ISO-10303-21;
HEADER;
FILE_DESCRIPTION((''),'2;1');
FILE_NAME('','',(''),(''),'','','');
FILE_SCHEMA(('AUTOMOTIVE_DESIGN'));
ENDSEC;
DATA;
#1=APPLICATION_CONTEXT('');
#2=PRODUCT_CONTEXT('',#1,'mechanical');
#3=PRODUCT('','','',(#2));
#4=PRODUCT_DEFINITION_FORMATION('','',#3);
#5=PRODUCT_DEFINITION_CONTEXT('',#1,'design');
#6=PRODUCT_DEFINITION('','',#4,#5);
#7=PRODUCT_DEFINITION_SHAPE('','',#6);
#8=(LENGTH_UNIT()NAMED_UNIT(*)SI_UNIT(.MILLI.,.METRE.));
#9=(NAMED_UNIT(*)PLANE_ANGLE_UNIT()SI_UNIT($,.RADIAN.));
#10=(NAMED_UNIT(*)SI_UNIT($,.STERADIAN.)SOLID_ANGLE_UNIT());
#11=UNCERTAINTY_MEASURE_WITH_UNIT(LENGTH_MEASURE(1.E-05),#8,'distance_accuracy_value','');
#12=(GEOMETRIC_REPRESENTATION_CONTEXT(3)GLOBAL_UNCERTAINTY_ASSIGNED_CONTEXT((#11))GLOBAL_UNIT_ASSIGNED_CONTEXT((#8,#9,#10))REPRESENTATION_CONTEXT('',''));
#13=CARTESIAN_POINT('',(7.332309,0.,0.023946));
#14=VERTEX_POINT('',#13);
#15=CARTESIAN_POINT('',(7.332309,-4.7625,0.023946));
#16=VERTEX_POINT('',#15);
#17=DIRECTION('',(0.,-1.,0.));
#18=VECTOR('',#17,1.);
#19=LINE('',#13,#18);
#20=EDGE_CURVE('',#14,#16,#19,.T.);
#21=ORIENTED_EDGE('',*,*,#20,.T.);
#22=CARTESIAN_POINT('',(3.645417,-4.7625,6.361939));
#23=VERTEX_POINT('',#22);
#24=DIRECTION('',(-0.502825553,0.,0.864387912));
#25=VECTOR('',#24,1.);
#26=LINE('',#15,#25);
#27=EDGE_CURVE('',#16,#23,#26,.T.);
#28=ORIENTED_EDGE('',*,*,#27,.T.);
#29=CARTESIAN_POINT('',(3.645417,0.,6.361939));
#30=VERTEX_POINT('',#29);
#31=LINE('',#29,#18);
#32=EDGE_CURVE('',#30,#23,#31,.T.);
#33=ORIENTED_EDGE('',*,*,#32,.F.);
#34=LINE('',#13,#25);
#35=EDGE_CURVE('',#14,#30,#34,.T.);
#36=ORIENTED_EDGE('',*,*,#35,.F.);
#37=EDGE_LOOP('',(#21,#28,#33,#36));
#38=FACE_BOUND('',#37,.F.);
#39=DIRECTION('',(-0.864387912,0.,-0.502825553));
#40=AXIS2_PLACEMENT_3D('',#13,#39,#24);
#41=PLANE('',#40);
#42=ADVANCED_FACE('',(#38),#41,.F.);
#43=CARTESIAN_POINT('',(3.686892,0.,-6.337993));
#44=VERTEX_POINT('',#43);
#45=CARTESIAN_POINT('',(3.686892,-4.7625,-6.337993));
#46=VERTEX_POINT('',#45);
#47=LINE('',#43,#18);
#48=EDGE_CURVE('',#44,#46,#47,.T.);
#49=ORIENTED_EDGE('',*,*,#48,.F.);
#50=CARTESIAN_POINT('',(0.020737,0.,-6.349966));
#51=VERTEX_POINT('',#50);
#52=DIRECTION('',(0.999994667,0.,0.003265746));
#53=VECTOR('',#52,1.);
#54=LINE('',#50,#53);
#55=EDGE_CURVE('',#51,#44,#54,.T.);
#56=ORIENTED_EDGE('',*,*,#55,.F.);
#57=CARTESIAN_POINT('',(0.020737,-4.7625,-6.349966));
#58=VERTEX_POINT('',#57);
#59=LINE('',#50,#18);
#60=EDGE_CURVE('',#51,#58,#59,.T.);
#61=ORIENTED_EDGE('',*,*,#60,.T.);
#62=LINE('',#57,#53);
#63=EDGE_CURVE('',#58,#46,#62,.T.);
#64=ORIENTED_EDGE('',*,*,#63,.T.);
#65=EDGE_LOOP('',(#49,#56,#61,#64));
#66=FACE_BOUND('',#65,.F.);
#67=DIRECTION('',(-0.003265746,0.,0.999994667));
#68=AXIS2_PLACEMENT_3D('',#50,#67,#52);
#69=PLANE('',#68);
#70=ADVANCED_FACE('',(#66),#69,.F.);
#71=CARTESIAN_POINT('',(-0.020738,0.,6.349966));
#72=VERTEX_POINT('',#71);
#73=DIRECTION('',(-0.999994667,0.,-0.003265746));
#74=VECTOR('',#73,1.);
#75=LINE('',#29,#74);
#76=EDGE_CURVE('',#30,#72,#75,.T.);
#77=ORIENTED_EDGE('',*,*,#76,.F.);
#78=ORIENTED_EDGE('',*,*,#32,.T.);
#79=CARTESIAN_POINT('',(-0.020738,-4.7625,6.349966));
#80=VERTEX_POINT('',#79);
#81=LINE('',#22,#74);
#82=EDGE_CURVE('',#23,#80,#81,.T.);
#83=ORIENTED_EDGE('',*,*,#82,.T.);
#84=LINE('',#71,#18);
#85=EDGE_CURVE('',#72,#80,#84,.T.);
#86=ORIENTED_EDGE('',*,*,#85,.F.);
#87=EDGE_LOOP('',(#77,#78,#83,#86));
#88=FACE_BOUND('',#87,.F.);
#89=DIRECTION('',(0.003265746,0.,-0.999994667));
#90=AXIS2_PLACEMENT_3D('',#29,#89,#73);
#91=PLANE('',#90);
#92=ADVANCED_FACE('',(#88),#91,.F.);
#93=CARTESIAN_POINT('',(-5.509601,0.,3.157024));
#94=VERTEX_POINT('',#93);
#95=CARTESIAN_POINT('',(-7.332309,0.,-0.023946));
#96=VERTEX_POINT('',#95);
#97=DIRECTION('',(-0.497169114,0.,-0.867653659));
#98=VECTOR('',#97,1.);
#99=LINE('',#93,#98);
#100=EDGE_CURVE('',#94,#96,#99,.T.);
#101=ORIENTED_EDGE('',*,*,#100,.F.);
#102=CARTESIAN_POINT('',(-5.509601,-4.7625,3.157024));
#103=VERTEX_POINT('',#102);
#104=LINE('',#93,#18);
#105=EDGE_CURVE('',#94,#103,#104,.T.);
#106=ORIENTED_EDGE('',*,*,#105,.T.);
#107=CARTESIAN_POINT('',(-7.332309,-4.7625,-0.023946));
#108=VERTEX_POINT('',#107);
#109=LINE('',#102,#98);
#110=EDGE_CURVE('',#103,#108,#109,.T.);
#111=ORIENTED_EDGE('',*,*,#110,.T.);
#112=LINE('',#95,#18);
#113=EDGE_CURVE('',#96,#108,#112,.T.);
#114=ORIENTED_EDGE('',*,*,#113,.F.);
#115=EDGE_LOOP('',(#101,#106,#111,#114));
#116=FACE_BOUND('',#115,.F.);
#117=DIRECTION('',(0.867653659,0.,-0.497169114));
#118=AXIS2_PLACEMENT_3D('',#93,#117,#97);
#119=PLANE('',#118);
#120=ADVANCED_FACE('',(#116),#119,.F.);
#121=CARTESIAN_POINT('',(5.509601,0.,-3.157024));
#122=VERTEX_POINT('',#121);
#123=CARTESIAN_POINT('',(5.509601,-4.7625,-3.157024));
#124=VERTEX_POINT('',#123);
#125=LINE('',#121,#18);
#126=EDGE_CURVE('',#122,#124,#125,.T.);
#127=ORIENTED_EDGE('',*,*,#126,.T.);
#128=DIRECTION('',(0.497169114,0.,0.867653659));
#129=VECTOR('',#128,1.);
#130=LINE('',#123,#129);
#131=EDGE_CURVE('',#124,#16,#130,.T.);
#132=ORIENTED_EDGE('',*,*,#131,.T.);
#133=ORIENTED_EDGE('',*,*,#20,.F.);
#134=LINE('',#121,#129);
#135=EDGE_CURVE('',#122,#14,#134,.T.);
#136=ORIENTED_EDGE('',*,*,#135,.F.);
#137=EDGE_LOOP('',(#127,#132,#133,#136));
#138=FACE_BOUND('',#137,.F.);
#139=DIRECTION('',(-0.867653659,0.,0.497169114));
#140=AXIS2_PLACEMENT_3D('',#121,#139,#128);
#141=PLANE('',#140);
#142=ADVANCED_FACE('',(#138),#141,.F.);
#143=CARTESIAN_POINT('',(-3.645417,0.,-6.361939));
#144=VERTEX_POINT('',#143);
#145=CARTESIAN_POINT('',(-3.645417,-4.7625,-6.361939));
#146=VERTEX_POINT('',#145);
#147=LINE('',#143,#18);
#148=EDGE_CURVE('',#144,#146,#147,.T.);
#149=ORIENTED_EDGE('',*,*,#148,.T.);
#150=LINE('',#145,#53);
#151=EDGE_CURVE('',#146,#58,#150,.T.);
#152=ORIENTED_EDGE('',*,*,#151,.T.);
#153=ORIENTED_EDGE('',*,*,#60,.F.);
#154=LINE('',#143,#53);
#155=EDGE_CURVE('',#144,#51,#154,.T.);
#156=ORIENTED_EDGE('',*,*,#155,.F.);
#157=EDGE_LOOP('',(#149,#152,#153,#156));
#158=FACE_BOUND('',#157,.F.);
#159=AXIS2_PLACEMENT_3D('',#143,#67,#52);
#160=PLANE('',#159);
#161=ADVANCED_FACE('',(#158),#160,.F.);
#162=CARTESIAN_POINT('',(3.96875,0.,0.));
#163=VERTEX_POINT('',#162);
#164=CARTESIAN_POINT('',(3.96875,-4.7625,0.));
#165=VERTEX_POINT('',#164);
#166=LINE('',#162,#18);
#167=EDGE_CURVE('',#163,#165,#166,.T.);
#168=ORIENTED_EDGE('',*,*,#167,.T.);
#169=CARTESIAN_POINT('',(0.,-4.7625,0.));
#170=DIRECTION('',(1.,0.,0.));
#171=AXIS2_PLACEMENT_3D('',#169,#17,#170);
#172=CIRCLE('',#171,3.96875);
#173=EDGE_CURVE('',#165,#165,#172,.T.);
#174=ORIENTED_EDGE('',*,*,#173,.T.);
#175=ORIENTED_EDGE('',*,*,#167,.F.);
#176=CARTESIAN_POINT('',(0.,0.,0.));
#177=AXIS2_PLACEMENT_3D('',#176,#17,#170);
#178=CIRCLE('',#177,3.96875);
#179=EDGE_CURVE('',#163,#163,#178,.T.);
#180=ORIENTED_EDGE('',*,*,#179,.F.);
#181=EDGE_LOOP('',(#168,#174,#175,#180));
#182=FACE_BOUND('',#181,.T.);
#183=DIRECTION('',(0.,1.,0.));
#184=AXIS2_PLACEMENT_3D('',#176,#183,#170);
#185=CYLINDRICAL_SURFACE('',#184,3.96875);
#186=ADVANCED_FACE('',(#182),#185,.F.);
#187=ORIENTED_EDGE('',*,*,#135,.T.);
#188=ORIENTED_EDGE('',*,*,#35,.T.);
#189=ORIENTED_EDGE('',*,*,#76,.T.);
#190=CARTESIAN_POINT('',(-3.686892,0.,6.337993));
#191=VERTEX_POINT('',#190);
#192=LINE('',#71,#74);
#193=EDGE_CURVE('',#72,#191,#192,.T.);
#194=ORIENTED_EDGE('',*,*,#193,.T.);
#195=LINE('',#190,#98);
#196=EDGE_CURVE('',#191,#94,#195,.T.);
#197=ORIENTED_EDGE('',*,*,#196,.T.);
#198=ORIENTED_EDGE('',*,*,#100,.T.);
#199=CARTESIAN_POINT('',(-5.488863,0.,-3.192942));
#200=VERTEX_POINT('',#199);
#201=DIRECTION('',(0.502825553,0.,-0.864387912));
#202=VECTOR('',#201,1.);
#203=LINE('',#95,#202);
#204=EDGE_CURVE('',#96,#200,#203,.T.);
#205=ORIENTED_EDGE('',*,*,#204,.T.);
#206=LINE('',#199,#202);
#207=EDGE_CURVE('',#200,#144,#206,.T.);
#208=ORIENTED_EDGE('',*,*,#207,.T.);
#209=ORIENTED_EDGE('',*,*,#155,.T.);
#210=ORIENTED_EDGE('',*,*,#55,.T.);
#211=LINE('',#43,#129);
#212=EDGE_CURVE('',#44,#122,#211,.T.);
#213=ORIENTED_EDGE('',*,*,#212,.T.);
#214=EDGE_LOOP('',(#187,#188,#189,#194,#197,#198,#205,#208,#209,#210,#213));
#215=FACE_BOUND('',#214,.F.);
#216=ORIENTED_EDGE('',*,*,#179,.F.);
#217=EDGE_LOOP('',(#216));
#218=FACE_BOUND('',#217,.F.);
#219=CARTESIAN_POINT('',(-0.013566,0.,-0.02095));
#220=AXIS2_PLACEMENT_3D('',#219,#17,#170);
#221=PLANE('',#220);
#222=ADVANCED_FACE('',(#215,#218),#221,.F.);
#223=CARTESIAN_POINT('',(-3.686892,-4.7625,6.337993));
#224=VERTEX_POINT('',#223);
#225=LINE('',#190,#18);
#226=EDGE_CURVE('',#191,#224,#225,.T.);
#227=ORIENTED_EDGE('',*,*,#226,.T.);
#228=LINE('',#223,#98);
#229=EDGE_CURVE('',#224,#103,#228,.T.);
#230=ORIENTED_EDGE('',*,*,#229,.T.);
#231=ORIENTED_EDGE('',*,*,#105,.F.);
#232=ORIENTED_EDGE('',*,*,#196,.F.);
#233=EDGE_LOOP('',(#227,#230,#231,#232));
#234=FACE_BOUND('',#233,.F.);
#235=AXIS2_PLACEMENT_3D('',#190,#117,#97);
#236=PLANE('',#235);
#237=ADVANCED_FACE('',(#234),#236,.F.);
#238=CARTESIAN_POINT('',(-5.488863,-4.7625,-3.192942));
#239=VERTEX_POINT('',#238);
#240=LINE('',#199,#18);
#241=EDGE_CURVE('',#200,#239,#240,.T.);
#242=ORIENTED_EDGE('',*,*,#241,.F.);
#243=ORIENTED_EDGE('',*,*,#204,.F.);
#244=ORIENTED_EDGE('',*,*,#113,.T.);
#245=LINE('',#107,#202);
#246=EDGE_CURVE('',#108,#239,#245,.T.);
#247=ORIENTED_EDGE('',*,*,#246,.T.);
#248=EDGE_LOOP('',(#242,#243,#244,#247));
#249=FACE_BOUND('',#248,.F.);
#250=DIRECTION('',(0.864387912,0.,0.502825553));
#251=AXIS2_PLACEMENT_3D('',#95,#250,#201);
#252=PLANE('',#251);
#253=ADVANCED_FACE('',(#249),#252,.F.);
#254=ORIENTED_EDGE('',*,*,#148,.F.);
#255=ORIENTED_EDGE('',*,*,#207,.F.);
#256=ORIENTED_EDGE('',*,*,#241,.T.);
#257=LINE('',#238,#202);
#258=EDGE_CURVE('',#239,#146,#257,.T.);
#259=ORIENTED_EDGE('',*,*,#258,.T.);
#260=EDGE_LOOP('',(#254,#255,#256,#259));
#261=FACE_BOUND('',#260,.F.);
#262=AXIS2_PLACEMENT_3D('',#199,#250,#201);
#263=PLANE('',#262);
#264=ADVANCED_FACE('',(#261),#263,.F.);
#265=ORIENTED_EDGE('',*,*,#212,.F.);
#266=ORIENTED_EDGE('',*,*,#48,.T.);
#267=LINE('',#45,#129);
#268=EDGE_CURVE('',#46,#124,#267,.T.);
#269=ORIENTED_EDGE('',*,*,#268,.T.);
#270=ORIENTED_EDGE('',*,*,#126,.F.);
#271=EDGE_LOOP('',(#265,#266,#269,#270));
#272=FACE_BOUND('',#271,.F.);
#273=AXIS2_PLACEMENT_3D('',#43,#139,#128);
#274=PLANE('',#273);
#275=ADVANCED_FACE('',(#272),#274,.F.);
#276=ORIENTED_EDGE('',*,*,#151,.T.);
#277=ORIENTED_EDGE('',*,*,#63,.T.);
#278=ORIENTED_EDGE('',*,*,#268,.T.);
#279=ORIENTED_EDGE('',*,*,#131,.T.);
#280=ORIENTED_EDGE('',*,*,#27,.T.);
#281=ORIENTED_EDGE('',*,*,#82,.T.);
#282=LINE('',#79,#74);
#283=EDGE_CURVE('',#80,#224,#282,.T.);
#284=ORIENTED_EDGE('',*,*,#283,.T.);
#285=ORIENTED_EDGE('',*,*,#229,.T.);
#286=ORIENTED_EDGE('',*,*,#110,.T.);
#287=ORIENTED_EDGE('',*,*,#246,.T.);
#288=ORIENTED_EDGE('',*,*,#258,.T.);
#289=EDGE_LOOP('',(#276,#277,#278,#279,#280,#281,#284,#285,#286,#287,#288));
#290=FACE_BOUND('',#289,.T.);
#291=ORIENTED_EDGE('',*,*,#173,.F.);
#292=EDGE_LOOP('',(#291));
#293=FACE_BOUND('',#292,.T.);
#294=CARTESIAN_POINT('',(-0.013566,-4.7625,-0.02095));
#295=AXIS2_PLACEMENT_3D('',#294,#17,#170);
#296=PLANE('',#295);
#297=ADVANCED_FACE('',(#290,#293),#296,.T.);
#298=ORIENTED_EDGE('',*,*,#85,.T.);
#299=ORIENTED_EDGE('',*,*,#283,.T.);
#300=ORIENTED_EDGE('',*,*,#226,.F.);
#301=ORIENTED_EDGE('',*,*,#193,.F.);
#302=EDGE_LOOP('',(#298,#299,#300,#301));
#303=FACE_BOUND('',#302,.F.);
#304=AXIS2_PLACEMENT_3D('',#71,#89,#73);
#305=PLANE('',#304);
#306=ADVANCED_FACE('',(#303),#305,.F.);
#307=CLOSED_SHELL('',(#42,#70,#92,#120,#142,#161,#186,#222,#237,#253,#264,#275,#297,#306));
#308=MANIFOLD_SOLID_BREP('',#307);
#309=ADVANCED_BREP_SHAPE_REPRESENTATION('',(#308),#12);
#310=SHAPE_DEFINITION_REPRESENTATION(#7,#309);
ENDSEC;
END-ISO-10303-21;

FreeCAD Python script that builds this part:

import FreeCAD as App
import Part
import Sketcher
Q = App.Units.Quantity


def add_polygon(sketch, points):
    """Adds a closed chain of lines whose ends are joined by coincident constraints."""
    first, n = sketch.GeometryCount, len(points)
    for a, b in zip(points, points[1:] + points[:1]):
        sketch.addGeometry(Part.LineSegment(App.Vector(*a, 0), App.Vector(*b, 0)), False)
    for i in range(n):
        sketch.addConstraint(Sketcher.Constraint("Coincident", first + i, 2, first + (i + 1) % n, 1))

doc = App.newDocument("Part")
body = doc.addObject("PartDesign::Body", "Body")

# Sketch on XZ plane
sketch1 = doc.addObject("Sketcher::SketchObject", "Sketch")
body.addObject(sketch1)
sketch1.AttachmentSupport = (doc.XZ_Plane, [""])
sketch1.MapMode = "FlatFace"
add_polygon(sketch1, [(-0.020738, 6.349966), (-3.686892, 6.337993), (-5.509601, 3.157024), (-7.332309, -0.023946), (-5.488863, -3.192942), (-3.645417, -6.361939), (0.020737, -6.349966), (3.686892, -6.337993), (5.509601, -3.157024), (7.332309, 0.023946), (3.645417, 6.361939)])  # lines 0-10
sketch1.addGeometry(Part.Circle(App.Vector(0, 0, 0), App.Vector(0, 0, 1), 3.96875), False)  # 11
sketch1.addConstraint([
    Sketcher.Constraint("Coincident", 11, 3, -1, 1),
    Sketcher.Constraint("Symmetric", 0, 2, 6, 2, -1, 1),
    Sketcher.Constraint("Symmetric", 1, 2, 7, 2, -1, 1),
    Sketcher.Constraint("Symmetric", 2, 2, 8, 2, -1, 1),
    Sketcher.Constraint("Symmetric", 4, 2, 9, 2, -1, 1),
    Sketcher.Constraint("Symmetric", 5, 2, 10, 2, -1, 1),
    Sketcher.Constraint("Parallel", 1, 2),
    Sketcher.Constraint("Parallel", 3, 4),
    Sketcher.Constraint("Parallel", 0, 5),
    Sketcher.Constraint("Equal", 0, 1),
    Sketcher.Constraint("Equal", 1, 2),
    Sketcher.Constraint("Equal", 2, 3),
    Sketcher.Constraint("Equal", 3, 4),
    Sketcher.Constraint("Equal", 4, 5),
    Sketcher.Constraint("Diameter", 11, Q("0.3125 in")),
    Sketcher.Constraint("DistanceX", 1, 2, -1, 1, 5.509601),
    Sketcher.Constraint("Distance", 9, 7.332348),
    Sketcher.Constraint("DistanceX", 2, 2, -1, 1, 7.332309),
    Sketcher.Constraint("DistanceY", 4, 2, -1, 1, 6.361939),
])
pad1 = doc.addObject("PartDesign::Pad", "Pad")
body.addObject(pad1)
pad1.Profile = sketch1
pad1.Length = Q("0.1875 in")

doc.recompute()
